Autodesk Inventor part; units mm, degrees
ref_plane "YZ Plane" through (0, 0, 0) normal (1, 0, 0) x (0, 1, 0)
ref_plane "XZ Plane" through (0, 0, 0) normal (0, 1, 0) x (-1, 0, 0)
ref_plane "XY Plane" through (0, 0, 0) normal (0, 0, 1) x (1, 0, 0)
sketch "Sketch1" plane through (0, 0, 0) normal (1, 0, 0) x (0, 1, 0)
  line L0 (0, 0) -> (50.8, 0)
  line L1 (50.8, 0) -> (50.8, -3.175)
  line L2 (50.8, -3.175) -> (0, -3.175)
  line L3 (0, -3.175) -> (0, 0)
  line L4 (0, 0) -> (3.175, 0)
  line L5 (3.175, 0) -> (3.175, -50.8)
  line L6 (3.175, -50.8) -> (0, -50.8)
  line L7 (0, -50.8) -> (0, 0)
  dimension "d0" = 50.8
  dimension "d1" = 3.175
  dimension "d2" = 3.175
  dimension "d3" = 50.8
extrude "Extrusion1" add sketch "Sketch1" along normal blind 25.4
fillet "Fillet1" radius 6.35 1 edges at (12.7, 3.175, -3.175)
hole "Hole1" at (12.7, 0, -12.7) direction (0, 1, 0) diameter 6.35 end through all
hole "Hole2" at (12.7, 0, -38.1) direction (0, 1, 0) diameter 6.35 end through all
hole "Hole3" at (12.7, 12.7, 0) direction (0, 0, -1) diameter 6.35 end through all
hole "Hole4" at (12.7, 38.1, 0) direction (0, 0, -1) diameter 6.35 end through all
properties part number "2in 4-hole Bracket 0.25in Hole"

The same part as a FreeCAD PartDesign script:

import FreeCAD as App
import Part
import Sketcher
Q = App.Units.Quantity


def edges_at(feature, points):
    """Names of the edges that pass closest to the given points."""
    edges = feature.Shape.Edges
    near = lambda p: min(range(len(edges)), key=lambda i: edges[i].distToShape(Part.Vertex(*p))[0])
    return sorted({f"Edge{near(p) + 1}" for p in points})


def add_polygon(sketch, points):
    """Adds a closed chain of lines whose ends are joined by coincident constraints."""
    first, n = sketch.GeometryCount, len(points)
    for a, b in zip(points, points[1:] + points[:1]):
        sketch.addGeometry(Part.LineSegment(App.Vector(*a, 0), App.Vector(*b, 0)), False)
    for i in range(n):
        sketch.addConstraint(Sketcher.Constraint("Coincident", first + i, 2, first + (i + 1) % n, 1))

doc = App.newDocument("Part")
params = doc.addObject("Spreadsheet::Sheet", "Params")
for row, (alias, value) in enumerate([
    ("sketch1_width", "2 in"),
    ("sketch1_width2", "0.125 in"),
    ("pad1_length", "1 in"),
    ("fillet_radius", "0.25 in"),
    ("sketch2_diameter", "0.25 in"),
    ("hole_diameter", "0.25 in"),
    ("sketch3_diameter", "0.25 in"),
    ("hole2_diameter", "0.25 in"),
    ("sketch4_diameter", "0.25 in"),
    ("hole3_diameter", "0.25 in"),
    ("sketch5_diameter", "0.25 in"),
    ("hole4_diameter", "0.25 in"),
], start=1):
    params.set(f"A{row}", alias)
    params.set(f"B{row}", "=" + value)
    params.setAlias(f"B{row}", alias)

body = doc.addObject("PartDesign::Body", "Body")

# Sketch on YZ plane
sketch1 = body.newObject("Sketcher::SketchObject", "Sketch")
sketch1.AttachmentSupport = (doc.getObject("YZ_Plane"), [""])
sketch1.MapMode = "FlatFace"
add_polygon(sketch1, [(0, 0), (0, -50.8), (3.2, -50.8), (3.2, -3.2), (50.8, -3.2), (50.8, 0)])  # lines 0-5
sketch1.addConstraint([
    Sketcher.Constraint("Vertical", 0),
    Sketcher.Constraint("Horizontal", 1),
    Sketcher.Constraint("Vertical", 2),
    Sketcher.Constraint("Horizontal", 3),
    Sketcher.Constraint("Vertical", 4),
    Sketcher.Constraint("Horizontal", 5),
    Sketcher.Constraint("Coincident", 5, 2, -1, 1),
    Sketcher.Constraint("Equal", 5, 0),
    Sketcher.Constraint("Equal", 3, 2),
    Sketcher.Constraint("DistanceX", 5, 2, 5, 1, Q("2 in")),
    Sketcher.Constraint("DistanceX", 1, 1, 1, 2, Q("0.125 in")),
])
sketch1.setExpression("Constraints[15]", "Params.sketch1_width")
sketch1.setExpression("Constraints[16]", "Params.sketch1_width2")
pad1 = body.newObject("PartDesign::Pad", "Pad")
pad1.Profile = sketch1
pad1.setExpression("Length", "Params.pad1_length")
doc.recompute()

fillet = body.newObject("PartDesign::Fillet", "Fillet")
fillet.Base = (pad1, edges_at(pad1, [(12.7, 3.175, -3.175)]))
fillet.setExpression("Radius", "Params.fillet_radius")

# Sketch on XZ plane
sketch2 = body.newObject("Sketcher::SketchObject", "Sketch001")
sketch2.AttachmentSupport = (doc.getObject("XZ_Plane"), [""])
sketch2.MapMode = "FlatFace"
sketch2.addGeometry(Part.Circle(App.Vector(12.7, -12.7, 0), App.Vector(0, 0, 1), 3.2), False)
sketch2.addConstraint([
    Sketcher.Constraint("Diameter", 0, Q("0.25 in")),
    Sketcher.Constraint("DistanceX", -1, 1, 0, 3, Q("0.5 in")),
    Sketcher.Constraint("DistanceY", 0, 3, -1, 1, Q("0.5 in")),
])
sketch2.setExpression("Constraints[0]", "Params.sketch2_diameter")
doc.recompute()
hole = body.newObject("PartDesign::Hole", "Hole")
hole.Profile = sketch2
hole.ThreadType = "None"
hole.setExpression("Diameter", "Params.hole_diameter")
hole.DepthType = "ThroughAll"

# Sketch on XZ plane
sketch3 = body.newObject("Sketcher::SketchObject", "Sketch002")
sketch3.AttachmentSupport = (doc.getObject("XZ_Plane"), [""])
sketch3.MapMode = "FlatFace"
sketch3.addGeometry(Part.Circle(App.Vector(12.7, -38.1, 0), App.Vector(0, 0, 1), 3.2), False)
sketch3.addConstraint([
    Sketcher.Constraint("Diameter", 0, Q("0.25 in")),
    Sketcher.Constraint("DistanceX", -1, 1, 0, 3, Q("0.5 in")),
    Sketcher.Constraint("DistanceY", 0, 3, -1, 1, Q("1.5 in")),
])
sketch3.setExpression("Constraints[0]", "Params.sketch3_diameter")
doc.recompute()
hole2 = body.newObject("PartDesign::Hole", "Hole001")
hole2.Profile = sketch3
hole2.ThreadType = "None"
hole2.setExpression("Diameter", "Params.hole2_diameter")
hole2.DepthType = "ThroughAll"

# Sketch on XY plane
sketch4 = body.newObject("Sketcher::SketchObject", "Sketch003")
sketch4.AttachmentSupport = (doc.getObject("XY_Plane"), [""])
sketch4.MapMode = "FlatFace"
sketch4.addGeometry(Part.Circle(App.Vector(12.7, 12.7, 0), App.Vector(0, 0, 1), 3.2), False)
sketch4.addConstraint([
    Sketcher.Constraint("Diameter", 0, Q("0.25 in")),
    Sketcher.Constraint("DistanceX", -1, 1, 0, 3, Q("0.5 in")),
    Sketcher.Constraint("DistanceY", -1, 1, 0, 3, Q("0.5 in")),
])
sketch4.setExpression("Constraints[0]", "Params.sketch4_diameter")
doc.recompute()
hole3 = body.newObject("PartDesign::Hole", "Hole002")
hole3.Profile = sketch4
hole3.ThreadType = "None"
hole3.setExpression("Diameter", "Params.hole3_diameter")
hole3.DepthType = "ThroughAll"

# Sketch on XY plane
sketch5 = body.newObject("Sketcher::SketchObject", "Sketch004")
sketch5.AttachmentSupport = (doc.getObject("XY_Plane"), [""])
sketch5.MapMode = "FlatFace"
sketch5.addGeometry(Part.Circle(App.Vector(12.7, 38.1, 0), App.Vector(0, 0, 1), 3.2), False)
sketch5.addConstraint([
    Sketcher.Constraint("Diameter", 0, Q("0.25 in")),
    Sketcher.Constraint("DistanceX", -1, 1, 0, 3, Q("0.5 in")),
    Sketcher.Constraint("DistanceY", -1, 1, 0, 3, Q("1.5 in")),
])
sketch5.setExpression("Constraints[0]", "Params.sketch5_diameter")
doc.recompute()
hole4 = body.newObject("PartDesign::Hole", "Hole003")
hole4.Profile = sketch5
hole4.ThreadType = "None"
hole4.setExpression("Diameter", "Params.hole4_diameter")
hole4.DepthType = "ThroughAll"

doc.recompute()
